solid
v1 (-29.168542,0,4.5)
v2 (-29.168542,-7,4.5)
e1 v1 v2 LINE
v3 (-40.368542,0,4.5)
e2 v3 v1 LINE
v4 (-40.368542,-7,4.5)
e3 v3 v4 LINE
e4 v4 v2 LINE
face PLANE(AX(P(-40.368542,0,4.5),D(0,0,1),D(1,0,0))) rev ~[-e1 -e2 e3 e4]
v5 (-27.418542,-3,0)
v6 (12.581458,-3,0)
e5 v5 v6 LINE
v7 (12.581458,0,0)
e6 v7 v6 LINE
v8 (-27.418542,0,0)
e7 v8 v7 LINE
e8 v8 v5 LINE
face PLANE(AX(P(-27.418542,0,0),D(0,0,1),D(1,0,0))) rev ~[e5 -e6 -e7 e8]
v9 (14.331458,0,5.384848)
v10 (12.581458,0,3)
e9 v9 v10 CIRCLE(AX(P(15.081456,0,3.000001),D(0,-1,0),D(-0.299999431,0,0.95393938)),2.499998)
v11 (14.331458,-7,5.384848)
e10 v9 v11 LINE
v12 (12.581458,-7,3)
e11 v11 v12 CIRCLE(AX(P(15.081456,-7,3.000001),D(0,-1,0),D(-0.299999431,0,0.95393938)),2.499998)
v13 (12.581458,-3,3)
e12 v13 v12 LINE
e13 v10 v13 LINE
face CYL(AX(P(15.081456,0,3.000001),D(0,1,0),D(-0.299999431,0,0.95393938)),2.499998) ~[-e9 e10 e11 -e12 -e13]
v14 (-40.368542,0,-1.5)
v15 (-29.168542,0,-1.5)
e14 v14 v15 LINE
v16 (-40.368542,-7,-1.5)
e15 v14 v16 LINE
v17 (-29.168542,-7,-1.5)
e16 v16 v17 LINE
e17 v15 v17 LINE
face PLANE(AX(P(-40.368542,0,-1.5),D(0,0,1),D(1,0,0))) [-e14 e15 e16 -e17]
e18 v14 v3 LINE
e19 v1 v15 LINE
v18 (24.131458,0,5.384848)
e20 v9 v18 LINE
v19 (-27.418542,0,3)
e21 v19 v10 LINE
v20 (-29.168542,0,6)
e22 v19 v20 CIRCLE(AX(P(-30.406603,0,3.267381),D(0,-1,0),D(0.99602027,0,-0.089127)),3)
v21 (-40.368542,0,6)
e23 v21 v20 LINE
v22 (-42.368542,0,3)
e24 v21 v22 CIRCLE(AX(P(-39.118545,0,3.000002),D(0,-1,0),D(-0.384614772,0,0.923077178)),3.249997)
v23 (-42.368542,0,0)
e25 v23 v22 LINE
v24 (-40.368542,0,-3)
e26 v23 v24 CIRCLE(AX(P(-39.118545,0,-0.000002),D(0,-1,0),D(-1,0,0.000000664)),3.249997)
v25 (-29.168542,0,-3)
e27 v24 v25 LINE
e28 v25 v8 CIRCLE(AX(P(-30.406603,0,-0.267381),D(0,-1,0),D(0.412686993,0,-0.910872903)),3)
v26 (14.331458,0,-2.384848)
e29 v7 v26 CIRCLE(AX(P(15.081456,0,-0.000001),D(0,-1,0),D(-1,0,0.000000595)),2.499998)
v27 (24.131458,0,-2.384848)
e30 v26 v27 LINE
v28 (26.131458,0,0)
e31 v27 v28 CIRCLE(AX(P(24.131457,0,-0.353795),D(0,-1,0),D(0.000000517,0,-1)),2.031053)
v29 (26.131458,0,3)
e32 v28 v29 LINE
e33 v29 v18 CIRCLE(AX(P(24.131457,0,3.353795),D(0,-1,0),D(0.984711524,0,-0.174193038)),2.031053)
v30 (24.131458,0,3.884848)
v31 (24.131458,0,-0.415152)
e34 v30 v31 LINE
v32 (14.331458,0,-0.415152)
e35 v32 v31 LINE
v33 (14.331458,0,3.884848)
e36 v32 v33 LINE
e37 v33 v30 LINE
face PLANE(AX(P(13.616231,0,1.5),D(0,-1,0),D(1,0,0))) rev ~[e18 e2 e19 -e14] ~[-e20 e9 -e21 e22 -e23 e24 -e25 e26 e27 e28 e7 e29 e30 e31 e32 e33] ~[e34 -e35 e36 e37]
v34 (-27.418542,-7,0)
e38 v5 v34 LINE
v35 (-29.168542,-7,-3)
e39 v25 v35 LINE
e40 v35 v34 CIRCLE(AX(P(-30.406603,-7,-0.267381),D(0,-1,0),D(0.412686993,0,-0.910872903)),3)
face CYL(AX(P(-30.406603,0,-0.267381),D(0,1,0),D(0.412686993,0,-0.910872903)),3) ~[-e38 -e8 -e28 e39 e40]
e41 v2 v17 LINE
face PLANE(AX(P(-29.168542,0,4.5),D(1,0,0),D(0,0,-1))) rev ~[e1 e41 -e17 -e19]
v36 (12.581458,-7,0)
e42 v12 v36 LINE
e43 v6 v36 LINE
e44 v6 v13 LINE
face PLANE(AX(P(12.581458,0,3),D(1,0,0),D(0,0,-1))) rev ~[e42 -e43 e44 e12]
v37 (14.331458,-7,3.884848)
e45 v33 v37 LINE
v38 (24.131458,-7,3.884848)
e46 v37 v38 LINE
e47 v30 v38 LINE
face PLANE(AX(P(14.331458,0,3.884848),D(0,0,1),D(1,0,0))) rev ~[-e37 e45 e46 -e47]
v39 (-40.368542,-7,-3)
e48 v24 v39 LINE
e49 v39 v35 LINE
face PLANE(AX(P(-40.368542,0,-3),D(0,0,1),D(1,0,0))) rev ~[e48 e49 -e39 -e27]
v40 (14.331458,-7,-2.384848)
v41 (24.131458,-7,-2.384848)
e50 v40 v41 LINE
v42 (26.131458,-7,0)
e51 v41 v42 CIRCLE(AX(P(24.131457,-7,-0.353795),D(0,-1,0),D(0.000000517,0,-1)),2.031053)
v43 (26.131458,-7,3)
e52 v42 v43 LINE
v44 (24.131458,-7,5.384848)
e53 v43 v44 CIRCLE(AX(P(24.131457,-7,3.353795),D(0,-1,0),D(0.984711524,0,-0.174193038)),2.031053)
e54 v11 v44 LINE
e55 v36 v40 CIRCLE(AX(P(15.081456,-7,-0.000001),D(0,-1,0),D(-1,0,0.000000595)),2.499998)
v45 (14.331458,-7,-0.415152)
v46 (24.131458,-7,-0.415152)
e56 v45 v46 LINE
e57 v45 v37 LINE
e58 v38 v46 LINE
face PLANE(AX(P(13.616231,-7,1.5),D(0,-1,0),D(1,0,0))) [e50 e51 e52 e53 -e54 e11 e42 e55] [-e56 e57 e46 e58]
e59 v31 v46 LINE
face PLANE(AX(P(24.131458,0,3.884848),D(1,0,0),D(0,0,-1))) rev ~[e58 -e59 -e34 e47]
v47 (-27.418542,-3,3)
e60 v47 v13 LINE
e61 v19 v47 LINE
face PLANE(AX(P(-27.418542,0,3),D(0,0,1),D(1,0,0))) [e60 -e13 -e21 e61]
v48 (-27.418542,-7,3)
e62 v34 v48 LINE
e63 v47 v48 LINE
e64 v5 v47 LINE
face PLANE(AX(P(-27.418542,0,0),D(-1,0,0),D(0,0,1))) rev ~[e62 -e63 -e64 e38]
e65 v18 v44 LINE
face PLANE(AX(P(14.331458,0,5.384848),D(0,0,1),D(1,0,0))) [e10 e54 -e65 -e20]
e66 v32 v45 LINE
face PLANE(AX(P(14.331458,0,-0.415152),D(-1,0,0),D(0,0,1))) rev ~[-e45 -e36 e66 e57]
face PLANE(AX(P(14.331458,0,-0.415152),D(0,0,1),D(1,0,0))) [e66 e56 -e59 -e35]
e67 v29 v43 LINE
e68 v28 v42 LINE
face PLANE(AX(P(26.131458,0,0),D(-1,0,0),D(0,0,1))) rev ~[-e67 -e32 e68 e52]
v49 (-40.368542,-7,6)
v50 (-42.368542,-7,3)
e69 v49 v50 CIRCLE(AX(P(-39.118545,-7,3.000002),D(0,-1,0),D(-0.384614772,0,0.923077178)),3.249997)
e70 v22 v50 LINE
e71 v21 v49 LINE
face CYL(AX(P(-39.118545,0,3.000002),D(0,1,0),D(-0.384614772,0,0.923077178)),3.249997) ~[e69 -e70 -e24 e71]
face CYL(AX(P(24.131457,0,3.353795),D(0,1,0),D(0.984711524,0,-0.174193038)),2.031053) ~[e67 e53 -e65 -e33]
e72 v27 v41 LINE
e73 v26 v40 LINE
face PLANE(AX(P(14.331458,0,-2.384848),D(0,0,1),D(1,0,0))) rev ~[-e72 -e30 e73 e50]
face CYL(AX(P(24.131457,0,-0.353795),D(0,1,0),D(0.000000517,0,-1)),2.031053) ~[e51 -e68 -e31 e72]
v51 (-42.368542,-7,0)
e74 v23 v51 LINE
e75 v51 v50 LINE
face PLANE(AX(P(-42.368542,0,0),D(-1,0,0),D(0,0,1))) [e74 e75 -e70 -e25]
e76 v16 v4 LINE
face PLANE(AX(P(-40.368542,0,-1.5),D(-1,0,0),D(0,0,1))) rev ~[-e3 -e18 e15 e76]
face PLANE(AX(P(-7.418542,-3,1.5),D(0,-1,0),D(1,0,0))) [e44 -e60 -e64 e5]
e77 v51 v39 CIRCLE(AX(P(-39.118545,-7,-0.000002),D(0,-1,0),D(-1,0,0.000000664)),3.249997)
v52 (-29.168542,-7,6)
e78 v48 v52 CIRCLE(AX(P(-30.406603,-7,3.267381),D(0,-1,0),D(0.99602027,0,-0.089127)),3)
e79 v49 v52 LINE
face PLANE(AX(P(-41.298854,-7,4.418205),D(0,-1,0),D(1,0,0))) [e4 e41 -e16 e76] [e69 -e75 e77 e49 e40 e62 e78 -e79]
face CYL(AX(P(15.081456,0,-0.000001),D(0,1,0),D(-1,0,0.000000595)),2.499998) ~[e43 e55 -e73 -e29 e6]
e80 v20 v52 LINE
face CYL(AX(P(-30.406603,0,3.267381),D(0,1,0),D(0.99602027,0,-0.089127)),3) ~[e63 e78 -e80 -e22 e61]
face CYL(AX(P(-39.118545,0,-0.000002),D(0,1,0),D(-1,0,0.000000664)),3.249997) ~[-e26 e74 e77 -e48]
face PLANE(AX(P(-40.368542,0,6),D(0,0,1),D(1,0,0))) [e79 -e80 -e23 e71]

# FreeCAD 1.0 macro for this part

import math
import FreeCAD as App
import Part
import Sketcher
from FreeCAD import Vector


def add_polygon(sketch, points):
    """Adds a closed chain of lines whose ends are joined by coincident constraints."""
    first, n = sketch.GeometryCount, len(points)
    for a, b in zip(points, points[1:] + points[:1]):
        sketch.addGeometry(Part.LineSegment(App.Vector(*a, 0), App.Vector(*b, 0)), False)
    for i in range(n):
        sketch.addConstraint(Sketcher.Constraint("Coincident", first + i, 2, first + (i + 1) % n, 1))

doc = App.newDocument("Part")
body = doc.addObject("PartDesign::Body", "Body")

# Sketch on XZ plane
sketch1 = doc.addObject("Sketcher::SketchObject", "Sketch")
body.addObject(sketch1)
sketch1.AttachmentSupport = (doc.XZ_Plane, [""])
sketch1.MapMode = "FlatFace"
sketch1.addGeometry(Part.ArcOfCircle(Part.Circle(Vector(-39.1, 3, 0), Vector(0, 0, 1), 3.2), math.radians(113), math.radians(180)), False)  # 0
sketch1.addGeometry(Part.LineSegment(Vector(-42.4, 3, 0), Vector(-42.4, 0, 0)), False)  # 1
sketch1.addGeometry(Part.ArcOfCircle(Part.Circle(Vector(-39.1, 0, 0), Vector(0, 0, 1), 3.2), math.radians(180), math.radians(247)), False)  # 2
sketch1.addGeometry(Part.LineSegment(Vector(-40.4, -3, 0), Vector(-29.2, -3, 0)), False)  # 3
sketch1.addGeometry(Part.ArcOfCircle(Part.Circle(Vector(-30.4, -0.3, 0), Vector(0, 0, 1), 3), math.radians(-66), math.radians(5)), False)  # 4
sketch1.addGeometry(Part.LineSegment(Vector(-27.4, 0, 0), Vector(-27.4, 3, 0)), False)  # 5
sketch1.addGeometry(Part.ArcOfCircle(Part.Circle(Vector(-30.4, 3.3, 0), Vector(0, 0, 1), 3), math.radians(-5), math.radians(66)), False)  # 6
sketch1.addGeometry(Part.LineSegment(Vector(-29.2, 6, 0), Vector(-40.4, 6, 0)), False)  # 7
add_polygon(sketch1, [(-29.2, 4.5), (-29.2, -1.5), (-40.4, -1.5), (-40.4, 4.5)])  # lines 8-11
sketch1.addConstraint([
    Sketcher.Constraint("Tangent", 0, 2, 1, 1),
    Sketcher.Constraint("Tangent", 1, 2, 2, 1),
    Sketcher.Constraint("Coincident", 2, 2, 3, 1),
    Sketcher.Constraint("Coincident", 3, 2, 4, 1),
    Sketcher.Constraint("Coincident", 4, 2, 5, 1),
    Sketcher.Constraint("Coincident", 5, 2, 6, 1),
    Sketcher.Constraint("Coincident", 6, 2, 7, 1),
    Sketcher.Constraint("Coincident", 7, 2, 0, 1),
    Sketcher.Constraint("Vertical", 1),
    Sketcher.Constraint("Horizontal", 3),
    Sketcher.Constraint("Vertical", 5),
    Sketcher.Constraint("Horizontal", 7),
    Sketcher.Constraint("Vertical", 8),
    Sketcher.Constraint("Horizontal", 9),
    Sketcher.Constraint("Vertical", 10),
    Sketcher.Constraint("Horizontal", 11),
    Sketcher.Constraint("Equal", 0, 2),
    Sketcher.Constraint("Equal", 4, 6),
    Sketcher.Constraint("PointOnObject", 1, 2, -1),
    Sketcher.Constraint("PointOnObject", 4, 2, -1),
    Sketcher.Constraint("Horizontal", 0, 2, 5, 2),
    Sketcher.Constraint("Vertical", 4, 3, 6, 3),
    Sketcher.Constraint("Vertical", 3, 2, 6, 2),
    Sketcher.Constraint("Vertical", 6, 2, 8, 2),
    Sketcher.Constraint("Vertical", 7, 2, 9, 2),
    Sketcher.Constraint("Radius", 4, 3.0),
    Sketcher.Constraint("DistanceY", 1, 2, 1, 1, 3.0),
    Sketcher.Constraint("DistanceY", 8, 2, 8, 1, 6.0),
    Sketcher.Constraint("DistanceX", 3, 1, 3, 2, 11.2),
    Sketcher.Constraint("DistanceY", 2, 2, -1, 1, 3.0),
    Sketcher.Constraint("DistanceX", 1, 2, 2, 2, 2.0),
    Sketcher.Constraint("DistanceY", 8, 2, -1, 1, 1.5),
    Sketcher.Constraint("DistanceX", 3, 2, 4, 2, 1.75),
    Sketcher.Constraint("DistanceX", 0, 2, -1, 1, 42.368542),
])
pad1 = doc.addObject("PartDesign::Pad", "Pad")
body.addObject(pad1)
pad1.Profile = sketch1
pad1.Length = 7

# Sketch on XZ plane
sketch2 = doc.addObject("Sketcher::SketchObject", "Sketch001")
body.addObject(sketch2)
sketch2.AttachmentSupport = (doc.XZ_Plane, [""])
sketch2.MapMode = "FlatFace"
add_polygon(sketch2, [(-27.4, 3), (-27.4, 0), (12.6, 0), (12.6, 3)])  # lines 0-3
sketch2.addConstraint([
    Sketcher.Constraint("Vertical", 0),
    Sketcher.Constraint("Horizontal", 1),
    Sketcher.Constraint("Vertical", 2),
    Sketcher.Constraint("Horizontal", 3),
    Sketcher.Constraint("PointOnObject", 0, 2, -1),
    Sketcher.Constraint("DistanceX", 1, 1, 1, 2, 40.0),
    Sketcher.Constraint("DistanceY", 0, 2, 0, 1, 3.0),
    Sketcher.Constraint("DistanceX", 0, 2, -1, 1, 27.418542),
])
pad2 = doc.addObject("PartDesign::Pad", "Pad001")
body.addObject(pad2)
pad2.Profile = sketch2
pad2.Length = 3

# Sketch on XZ plane
sketch3 = doc.addObject("Sketcher::SketchObject", "Sketch002")
body.addObject(sketch3)
sketch3.AttachmentSupport = (doc.XZ_Plane, [""])
sketch3.MapMode = "FlatFace"
sketch3.addGeometry(Part.LineSegment(Vector(12.6, 3, 0), Vector(12.6, 0, 0)), False)  # 0
sketch3.addGeometry(Part.ArcOfCircle(Part.Circle(Vector(15.1, 0, 0), Vector(0, 0, 1), 2.5), math.radians(180), math.radians(253)), False)  # 1
sketch3.addGeometry(Part.LineSegment(Vector(14.3, -2.4, 0), Vector(24.1, -2.4, 0)), False)  # 2
sketch3.addGeometry(Part.ArcOfCircle(Part.Circle(Vector(24.1, -0.4, 0), Vector(0, 0, 1), 2), math.radians(-90), math.radians(10)), False)  # 3
sketch3.addGeometry(Part.LineSegment(Vector(26.1, 0, 0), Vector(26.1, 3, 0)), False)  # 4
sketch3.addGeometry(Part.ArcOfCircle(Part.Circle(Vector(24.1, 3.4, 0), Vector(0, 0, 1), 2), math.radians(-10), math.radians(90)), False)  # 5
sketch3.addGeometry(Part.LineSegment(Vector(24.1, 5.4, 0), Vector(14.3, 5.4, 0)), False)  # 6
sketch3.addGeometry(Part.ArcOfCircle(Part.Circle(Vector(15.1, 3, 0), Vector(0, 0, 1), 2.5), math.radians(107), math.radians(180)), False)  # 7
add_polygon(sketch3, [(24.1, 3.9), (24.1, -0.4), (14.3, -0.4), (14.3, 3.9)])  # lines 8-11
sketch3.addConstraint([
    Sketcher.Constraint("Tangent", 0, 2, 1, 1),
    Sketcher.Constraint("Coincident", 1, 2, 2, 1),
    Sketcher.Constraint("Tangent", 2, 2, 3, 1),
    Sketcher.Constraint("Coincident", 3, 2, 4, 1),
    Sketcher.Constraint("Coincident", 4, 2, 5, 1),
    Sketcher.Constraint("Tangent", 5, 2, 6, 1),
    Sketcher.Constraint("Coincident", 6, 2, 7, 1),
    Sketcher.Constraint("Tangent", 7, 2, 0, 1),
    Sketcher.Constraint("Vertical", 0),
    Sketcher.Constraint("Horizontal", 2),
    Sketcher.Constraint("Vertical", 4),
    Sketcher.Constraint("Horizontal", 6),
    Sketcher.Constraint("Vertical", 8),
    Sketcher.Constraint("Horizontal", 9),
    Sketcher.Constraint("Vertical", 10),
    Sketcher.Constraint("Horizontal", 11),
    Sketcher.Constraint("Equal", 3, 5),
    Sketcher.Constraint("Equal", 1, 7),
    Sketcher.Constraint("PointOnObject", 1, 3, -1),
    Sketcher.Constraint("PointOnObject", 3, 2, -1),
    Sketcher.Constraint("Horizontal", 7, 3, 4, 2),
    Sketcher.Constraint("Vertical", 3, 3, 5, 3),
    Sketcher.Constraint("Vertical", 5, 2, 8, 2),
    Sketcher.Constraint("Vertical", 6, 2, 9, 2),
    Sketcher.Constraint("DistanceY", 0, 2, 0, 1, 3.0),
    Sketcher.Constraint("DistanceX", 2, 1, 2, 2, 9.8),
    Sketcher.Constraint("DistanceY", 8, 2, 8, 1, 4.3),
    Sketcher.Constraint("DistanceX", 3, 3, 3, 2, 2.000001),
    Sketcher.Constraint("DistanceY", 10, 2, 6, 2, 1.5),
    Sketcher.Constraint("DistanceX", 1, 3, 3, 3, 9.050001),
    Sketcher.Constraint("DistanceX", 0, 2, 3, 3, 11.549999),
    Sketcher.Constraint("DistanceX", -1, 1, 1, 2, 14.331458),
])
pad3 = doc.addObject("PartDesign::Pad", "Pad002")
body.addObject(pad3)
pad3.Profile = sketch3
pad3.Length = 7

doc.recompute()
